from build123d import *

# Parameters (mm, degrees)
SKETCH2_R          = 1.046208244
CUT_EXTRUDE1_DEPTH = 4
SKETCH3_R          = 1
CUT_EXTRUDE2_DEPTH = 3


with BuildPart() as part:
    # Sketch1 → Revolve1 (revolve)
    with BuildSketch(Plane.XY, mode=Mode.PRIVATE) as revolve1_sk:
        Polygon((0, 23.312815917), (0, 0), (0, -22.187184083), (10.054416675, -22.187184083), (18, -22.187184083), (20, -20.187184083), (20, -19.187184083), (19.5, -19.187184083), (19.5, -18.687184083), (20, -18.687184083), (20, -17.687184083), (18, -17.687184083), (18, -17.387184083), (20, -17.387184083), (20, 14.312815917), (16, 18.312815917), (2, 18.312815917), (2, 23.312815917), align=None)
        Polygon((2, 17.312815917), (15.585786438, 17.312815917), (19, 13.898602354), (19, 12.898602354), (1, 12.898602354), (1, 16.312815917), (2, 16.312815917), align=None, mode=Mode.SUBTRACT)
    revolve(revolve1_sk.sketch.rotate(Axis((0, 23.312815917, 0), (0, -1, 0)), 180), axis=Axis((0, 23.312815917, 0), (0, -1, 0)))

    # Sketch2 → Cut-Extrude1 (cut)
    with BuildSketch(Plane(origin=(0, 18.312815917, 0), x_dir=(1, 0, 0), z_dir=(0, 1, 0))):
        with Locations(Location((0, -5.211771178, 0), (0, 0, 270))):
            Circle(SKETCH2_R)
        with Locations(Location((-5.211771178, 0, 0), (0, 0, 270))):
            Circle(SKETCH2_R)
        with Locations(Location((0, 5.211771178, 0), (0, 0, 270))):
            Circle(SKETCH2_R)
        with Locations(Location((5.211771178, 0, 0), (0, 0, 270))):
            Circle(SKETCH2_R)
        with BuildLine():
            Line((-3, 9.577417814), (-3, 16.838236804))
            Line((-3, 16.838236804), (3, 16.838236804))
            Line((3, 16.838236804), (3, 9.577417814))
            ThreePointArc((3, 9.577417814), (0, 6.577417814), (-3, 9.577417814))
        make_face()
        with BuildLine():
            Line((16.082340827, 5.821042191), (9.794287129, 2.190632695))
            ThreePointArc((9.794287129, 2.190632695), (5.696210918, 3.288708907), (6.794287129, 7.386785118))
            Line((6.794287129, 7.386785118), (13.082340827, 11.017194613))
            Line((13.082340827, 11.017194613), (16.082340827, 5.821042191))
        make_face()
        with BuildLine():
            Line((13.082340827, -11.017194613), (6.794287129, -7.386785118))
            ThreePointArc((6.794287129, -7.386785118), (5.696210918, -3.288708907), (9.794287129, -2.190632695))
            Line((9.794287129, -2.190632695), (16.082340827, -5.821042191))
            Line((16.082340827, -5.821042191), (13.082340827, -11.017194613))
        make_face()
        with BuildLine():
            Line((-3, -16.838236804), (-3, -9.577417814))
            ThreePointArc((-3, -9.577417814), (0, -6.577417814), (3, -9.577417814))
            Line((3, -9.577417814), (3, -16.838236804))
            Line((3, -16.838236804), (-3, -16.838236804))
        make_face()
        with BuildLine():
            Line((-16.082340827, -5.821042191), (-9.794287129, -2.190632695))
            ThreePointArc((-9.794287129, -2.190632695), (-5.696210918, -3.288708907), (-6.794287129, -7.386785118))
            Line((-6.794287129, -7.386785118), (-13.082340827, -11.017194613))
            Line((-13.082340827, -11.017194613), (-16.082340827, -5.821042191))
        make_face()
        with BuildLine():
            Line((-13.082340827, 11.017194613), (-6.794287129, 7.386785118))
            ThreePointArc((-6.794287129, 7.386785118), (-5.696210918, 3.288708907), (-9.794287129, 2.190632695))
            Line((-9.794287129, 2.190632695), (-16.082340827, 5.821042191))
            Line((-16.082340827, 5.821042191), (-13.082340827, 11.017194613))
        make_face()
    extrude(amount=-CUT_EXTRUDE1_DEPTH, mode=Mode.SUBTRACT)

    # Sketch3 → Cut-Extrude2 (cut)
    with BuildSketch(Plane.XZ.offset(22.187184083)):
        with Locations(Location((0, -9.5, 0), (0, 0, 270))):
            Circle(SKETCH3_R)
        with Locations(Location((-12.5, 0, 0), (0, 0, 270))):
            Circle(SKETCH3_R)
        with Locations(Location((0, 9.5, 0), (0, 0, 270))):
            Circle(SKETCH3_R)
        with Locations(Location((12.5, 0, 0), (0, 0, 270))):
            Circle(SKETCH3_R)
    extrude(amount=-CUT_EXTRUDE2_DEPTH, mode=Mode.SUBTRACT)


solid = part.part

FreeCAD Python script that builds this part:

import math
import FreeCAD as App
import Part
import Sketcher
Q = App.Units.Quantity


def add_polygon(sketch, points):
    """Adds a closed chain of lines whose ends are joined by coincident constraints."""
    first, n = sketch.GeometryCount, len(points)
    for a, b in zip(points, points[1:] + points[:1]):
        sketch.addGeometry(Part.LineSegment(App.Vector(*a, 0), App.Vector(*b, 0)), False)
    for i in range(n):
        sketch.addConstraint(Sketcher.Constraint("Coincident", first + i, 2, first + (i + 1) % n, 1))

doc = App.newDocument("Part")
body = doc.addObject("PartDesign::Body", "Body")

sketch1 = body.newObject("Sketcher::SketchObject", "Sketch")
sketch1.AttachmentSupport = (doc.getObject("XY_Plane"), [""])
sketch1.MapMode = "FlatFace"
add_polygon(sketch1, [(0, 23.31), (0, -22.19), (18, -22.19), (20, -20.19), (20, -19.19), (19.5, -19.19), (19.5, -18.69), (20, -18.69), (20, -17.69), (18, -17.69), (18, -17.39), (20, -17.39), (20, 14.31), (16, 18.31), (2, 18.31), (2, 23.31)])
add_polygon(sketch1, [(2, 16.31), (2, 17.31), (15.59, 17.31), (19, 13.9), (19, 12.9), (1, 12.9), (1, 16.31)])
sketch1.addConstraint(Sketcher.Constraint("Vertical", 0))
sketch1.addConstraint(Sketcher.Constraint("Horizontal", 1))
sketch1.addConstraint(Sketcher.Constraint("Vertical", 3))
sketch1.addConstraint(Sketcher.Constraint("Horizontal", 4))
sketch1.addConstraint(Sketcher.Constraint("Vertical", 5))
sketch1.addConstraint(Sketcher.Constraint("Horizontal", 6))
sketch1.addConstraint(Sketcher.Constraint("Vertical", 7))
sketch1.addConstraint(Sketcher.Constraint("Horizontal", 8))
sketch1.addConstraint(Sketcher.Constraint("Vertical", 9))
sketch1.addConstraint(Sketcher.Constraint("Horizontal", 10))
sketch1.addConstraint(Sketcher.Constraint("Vertical", 11))
sketch1.addConstraint(Sketcher.Constraint("Horizontal", 13))
sketch1.addConstraint(Sketcher.Constraint("Vertical", 14))
sketch1.addConstraint(Sketcher.Constraint("Horizontal", 15))
sketch1.addConstraint(Sketcher.Constraint("Vertical", 16))
sketch1.addConstraint(Sketcher.Constraint("Horizontal", 17))
sketch1.addConstraint(Sketcher.Constraint("Vertical", 19))
sketch1.addConstraint(Sketcher.Constraint("Horizontal", 20))
sketch1.addConstraint(Sketcher.Constraint("Vertical", 21))
sketch1.addConstraint(Sketcher.Constraint("Horizontal", 22))
sketch1.addConstraint(Sketcher.Constraint("PointOnObject", 0, 2, -2))
sketch1.addConstraint(Sketcher.Constraint("Perpendicular", 2, 12))
sketch1.addConstraint(Sketcher.Constraint("Parallel", 12, 18))
sketch1.addConstraint(Sketcher.Constraint("Vertical", 3, 2, 6, 2))
sketch1.addConstraint(Sketcher.Constraint("Vertical", 1, 2, 8, 2))
sketch1.addConstraint(Sketcher.Constraint("Vertical", 7, 2, 10, 2))
sketch1.addConstraint(Sketcher.Constraint("Vertical", 14, 2, 16, 2))
sketch1.addConstraint(Sketcher.Constraint("Equal", 10, 15))
sketch1.addConstraint(Sketcher.Constraint("Equal", 1, 20))
sketch1.addConstraint(Sketcher.Constraint("Equal", 22, 3))
sketch1.addConstraint(Sketcher.Constraint("Equal", 6, 5))
sketch1.addConstraint(Sketcher.Constraint("Equal", 3, 7))
sketch1.addConstraint(Sketcher.Constraint("Equal", 7, 16))
sketch1.addConstraint(Sketcher.Constraint("Equal", 16, 19))
sketch1.addConstraint(Sketcher.Constraint("DistanceX", 1, 1, 1, 2, 18.0))
sketch1.addConstraint(Sketcher.Constraint("DistanceX", 8, 2, 8, 1, 2.0))
sketch1.addConstraint(Sketcher.Constraint("DistanceX", 13, 2, 13, 1, 14.0))
sketch1.addConstraint(Sketcher.Constraint("DistanceX", 22, 1, 22, 2, 1.0))
sketch1.addConstraint(Sketcher.Constraint("DistanceY", 14, 1, 14, 2, 5.0))
sketch1.addConstraint(Sketcher.Constraint("Angle", 2, Q("45 deg")))
sketch1.addConstraint(Sketcher.Constraint("DistanceX", 4, 2, 4, 1, 0.5))
sketch1.addConstraint(Sketcher.Constraint("DistanceY", 0, 2, 0, 1, 45.5))
sketch1.addConstraint(Sketcher.Constraint("DistanceY", 9, 1, 9, 2, 0.3))
sketch1.addConstraint(Sketcher.Constraint("DistanceY", 16, 2, 13, 2, 1.0))
sketch1.addConstraint(Sketcher.Constraint("DistanceX", 17, 1, 17, 2, 13.585786))
sketch1.addConstraint(Sketcher.Constraint("DistanceY", 0, 2, -1, 1, 22.187184))
revolution = body.newObject("PartDesign::Revolution", "Revolution")
revolution.Profile = sketch1
revolution.ReferenceAxis = (sketch1, ["V_Axis"])
revolution.Angle = 360

sketch2 = body.newObject("Sketcher::SketchObject", "Sketch001")
sketch2.AttachmentSupport = (doc.getObject("XZ_Plane"), [""])
sketch2.MapMode = "FlatFace"
sketch2.AttachmentOffset = App.Placement(App.Vector(0, 0, -18.312816), App.Rotation())
sketch2.addGeometry(Part.Circle(App.Vector(0, 5.2, 0), App.Vector(0, 0, 1), 1), False)
sketch2.addGeometry(Part.Circle(App.Vector(-5.2, 0, 0), App.Vector(0, 0, 1), 1), False)
sketch2.addGeometry(Part.Circle(App.Vector(0, -5.2, 0), App.Vector(0, 0, 1), 1), False)
sketch2.addGeometry(Part.Circle(App.Vector(5.2, 0, 0), App.Vector(0, 0, 1), 1), False)
sketch2.addGeometry(Part.LineSegment(App.Vector(-3, -16.8, 0), App.Vector(-3, -9.6, 0)), False)
sketch2.addGeometry(Part.ArcOfCircle(Part.Circle(App.Vector(0, -9.6, 0), App.Vector(0, 0, 1), 3), math.radians(0), math.radians(180)), False)
sketch2.addGeometry(Part.LineSegment(App.Vector(3, -9.6, 0), App.Vector(3, -16.8, 0)), False)
sketch2.addGeometry(Part.LineSegment(App.Vector(3, -16.8, 0), App.Vector(-3, -16.8, 0)), False)
sketch2.addGeometry(Part.LineSegment(App.Vector(9.8, -2.2, 0), App.Vector(16.1, -5.8, 0)), False)
sketch2.addGeometry(Part.LineSegment(App.Vector(16.1, -5.8, 0), App.Vector(13.1, -11, 0)), False)
sketch2.addGeometry(Part.LineSegment(App.Vector(13.1, -11, 0), App.Vector(6.8, -7.4, 0)), False)
sketch2.addGeometry(Part.ArcOfCircle(Part.Circle(App.Vector(8.3, -4.8, 0), App.Vector(0, 0, 1), 3), math.radians(60), math.radians(240)), False)
sketch2.addGeometry(Part.LineSegment(App.Vector(6.8, 7.4, 0), App.Vector(13.1, 11, 0)), False)
sketch2.addGeometry(Part.LineSegment(App.Vector(13.1, 11, 0), App.Vector(16.1, 5.8, 0)), False)
sketch2.addGeometry(Part.LineSegment(App.Vector(16.1, 5.8, 0), App.Vector(9.8, 2.2, 0)), False)
sketch2.addGeometry(Part.ArcOfCircle(Part.Circle(App.Vector(8.3, 4.8, 0), App.Vector(0, 0, 1), 3), math.radians(120), math.radians(300)), False)
sketch2.addGeometry(Part.LineSegment(App.Vector(-3, 9.6, 0), App.Vector(-3, 16.8, 0)), False)
sketch2.addGeometry(Part.LineSegment(App.Vector(-3, 16.8, 0), App.Vector(3, 16.8, 0)), False)
sketch2.addGeometry(Part.LineSegment(App.Vector(3, 16.8, 0), App.Vector(3, 9.6, 0)), False)
sketch2.addGeometry(Part.ArcOfCircle(Part.Circle(App.Vector(0, 9.6, 0), App.Vector(0, 0, 1), 3), math.radians(180), math.radians(360)), False)
sketch2.addGeometry(Part.LineSegment(App.Vector(-9.8, 2.2, 0), App.Vector(-16.1, 5.8, 0)), False)
sketch2.addGeometry(Part.LineSegment(App.Vector(-16.1, 5.8, 0), App.Vector(-13.1, 11, 0)), False)
sketch2.addGeometry(Part.LineSegment(App.Vector(-13.1, 11, 0), App.Vector(-6.8, 7.4, 0)), False)
sketch2.addGeometry(Part.ArcOfCircle(Part.Circle(App.Vector(-8.3, 4.8, 0), App.Vector(0, 0, 1), 3), math.radians(-120), math.radians(60)), False)
sketch2.addGeometry(Part.LineSegment(App.Vector(-6.8, -7.4, 0), App.Vector(-13.1, -11, 0)), False)
sketch2.addGeometry(Part.LineSegment(App.Vector(-13.1, -11, 0), App.Vector(-16.1, -5.8, 0)), False)
sketch2.addGeometry(Part.LineSegment(App.Vector(-16.1, -5.8, 0), App.Vector(-9.8, -2.2, 0)), False)
sketch2.addGeometry(Part.ArcOfCircle(Part.Circle(App.Vector(-8.3, -4.8, 0), App.Vector(0, 0, 1), 3), math.radians(-60), math.radians(120)), False)
sketch2.addConstraint(Sketcher.Constraint("Tangent", 4, 2, 5, 2))
sketch2.addConstraint(Sketcher.Constraint("Tangent", 5, 1, 6, 1))
sketch2.addConstraint(Sketcher.Constraint("Coincident", 6, 2, 7, 1))
sketch2.addConstraint(Sketcher.Constraint("Coincident", 7, 2, 4, 1))
sketch2.addConstraint(Sketcher.Constraint("Coincident", 8, 2, 9, 1))
sketch2.addConstraint(Sketcher.Constraint("Coincident", 9, 2, 10, 1))
sketch2.addConstraint(Sketcher.Constraint("Tangent", 10, 2, 11, 2))
sketch2.addConstraint(Sketcher.Constraint("Tangent", 11, 1, 8, 1))
sketch2.addConstraint(Sketcher.Constraint("Coincident", 12, 2, 13, 1))
sketch2.addConstraint(Sketcher.Constraint("Coincident", 13, 2, 14, 1))
sketch2.addConstraint(Sketcher.Constraint("Tangent", 14, 2, 15, 2))
sketch2.addConstraint(Sketcher.Constraint("Tangent", 15, 1, 12, 1))
sketch2.addConstraint(Sketcher.Constraint("Coincident", 16, 2, 17, 1))
sketch2.addConstraint(Sketcher.Constraint("Coincident", 17, 2, 18, 1))
sketch2.addConstraint(Sketcher.Constraint("Tangent", 18, 2, 19, 2))
sketch2.addConstraint(Sketcher.Constraint("Tangent", 19, 1, 16, 1))
sketch2.addConstraint(Sketcher.Constraint("Coincident", 20, 2, 21, 1))
sketch2.addConstraint(Sketcher.Constraint("Coincident", 21, 2, 22, 1))
sketch2.addConstraint(Sketcher.Constraint("Tangent", 22, 2, 23, 2))
sketch2.addConstraint(Sketcher.Constraint("Tangent", 23, 1, 20, 1))
sketch2.addConstraint(Sketcher.Constraint("Coincident", 24, 2, 25, 1))
sketch2.addConstraint(Sketcher.Constraint("Coincident", 25, 2, 26, 1))
sketch2.addConstraint(Sketcher.Constraint("Tangent", 26, 2, 27, 2))
sketch2.addConstraint(Sketcher.Constraint("Tangent", 27, 1, 24, 1))
sketch2.addConstraint(Sketcher.Constraint("Vertical", 4))
sketch2.addConstraint(Sketcher.Constraint("Vertical", 6))
sketch2.addConstraint(Sketcher.Constraint("Horizontal", 7))
sketch2.addConstraint(Sketcher.Constraint("Vertical", 16))
sketch2.addConstraint(Sketcher.Constraint("Horizontal", 17))
sketch2.addConstraint(Sketcher.Constraint("Vertical", 18))
sketch2.addConstraint(Sketcher.Constraint("Equal", 0, 1))
sketch2.addConstraint(Sketcher.Constraint("Equal", 1, 2))
sketch2.addConstraint(Sketcher.Constraint("Equal", 2, 3))
sketch2.addConstraint(Sketcher.Constraint("Equal", 5, 11))
sketch2.addConstraint(Sketcher.Constraint("Equal", 11, 15))
sketch2.addConstraint(Sketcher.Constraint("Equal", 15, 19))
sketch2.addConstraint(Sketcher.Constraint("Equal", 19, 23))
sketch2.addConstraint(Sketcher.Constraint("Equal", 23, 27))
sketch2.addConstraint(Sketcher.Constraint("Symmetric", 0, 3, 2, 3, -1, 1))
sketch2.addConstraint(Sketcher.Constraint("Symmetric", 1, 3, 3, 3, -1, 1))
sketch2.addConstraint(Sketcher.Constraint("Symmetric", 5, 3, 19, 3, -1, 1))
sketch2.addConstraint(Sketcher.Constraint("Symmetric", 11, 3, 23, 3, -1, 1))
sketch2.addConstraint(Sketcher.Constraint("Symmetric", 15, 3, 27, 3, -1, 1))
sketch2.addConstraint(Sketcher.Constraint("Symmetric", 8, 2, 20, 2, -1, 1))
sketch2.addConstraint(Sketcher.Constraint("Symmetric", 9, 2, 21, 2, -1, 1))
sketch2.addConstraint(Sketcher.Constraint("Symmetric", 12, 2, 24, 2, -1, 1))
sketch2.addConstraint(Sketcher.Constraint("Symmetric", 13, 2, 25, 2, -1, 1))
sketch2.addConstraint(Sketcher.Constraint("Symmetric", 15, 3, 23, 3, -2))
sketch2.addConstraint(Sketcher.Constraint("Symmetric", 13, 2, 20, 2, -2))
sketch2.addConstraint(Sketcher.Constraint("Symmetric", 12, 2, 21, 2, -2))
sketch2.addConstraint(Sketcher.Constraint("Symmetric", 7, 2, 16, 2, -1))
sketch2.addConstraint(Sketcher.Constraint("PointOnObject", 0, 3, -2))
sketch2.addConstraint(Sketcher.Constraint("PointOnObject", 1, 3, -1))
sketch2.addConstraint(Sketcher.Constraint("Perpendicular", 8, 9))
sketch2.addConstraint(Sketcher.Constraint("Perpendicular", 9, 10))
sketch2.addConstraint(Sketcher.Constraint("Radius", 5, 3.0))
sketch2.addConstraint(Sketcher.Constraint("Angle", 8, Q("-30 deg")))
sketch2.addConstraint(Sketcher.Constraint("Diameter", 0, 2.092416))
sketch2.addConstraint(Sketcher.Constraint("DistanceY", 4, 1, 4, 2, 7.260819))
sketch2.addConstraint(Sketcher.Constraint("Distance", 8, 7.260819))
sketch2.addConstraint(Sketcher.Constraint("DistanceY", -1, 1, 0, 3, 5.211771))
sketch2.addConstraint(Sketcher.Constraint("DistanceX", 1, 3, -1, 1, 5.211771))
sketch2.addConstraint(Sketcher.Constraint("DistanceY", 11, 3, -1, 1, 4.788709))
sketch2.addConstraint(Sketcher.Constraint("DistanceX", -1, 1, 8, 2, 16.082341))
sketch2.addConstraint(Sketcher.Constraint("DistanceY", 5, 3, 0, 3, 14.789189))
pocket1 = body.newObject("PartDesign::Pocket", "Pocket")
pocket1.Profile = sketch2
pocket1.Length = 4
pocket1.Reversed = True

sketch3 = body.newObject("Sketcher::SketchObject", "Sketch002")
sketch3.AttachmentSupport = (doc.getObject("XZ_Plane"), [""])
sketch3.MapMode = "FlatFace"
sketch3.AttachmentOffset = App.Placement(App.Vector(0, 0, 22.187184), App.Rotation())
sketch3.addGeometry(Part.Circle(App.Vector(0, -9.5, 0), App.Vector(0, 0, 1), 1), False)
sketch3.addGeometry(Part.Circle(App.Vector(-12.5, 0, 0), App.Vector(0, 0, 1), 1), False)
sketch3.addGeometry(Part.Circle(App.Vector(0, 9.5, 0), App.Vector(0, 0, 1), 1), False)
sketch3.addGeometry(Part.Circle(App.Vector(12.5, 0, 0), App.Vector(0, 0, 1), 1), False)
sketch3.addConstraint(Sketcher.Constraint("Equal", 0, 1))
sketch3.addConstraint(Sketcher.Constraint("Equal", 1, 2))
sketch3.addConstraint(Sketcher.Constraint("Equal", 2, 3))
sketch3.addConstraint(Sketcher.Constraint("Symmetric", 0, 3, 2, 3, -1, 1))
sketch3.addConstraint(Sketcher.Constraint("Symmetric", 1, 3, 3, 3, -1, 1))
sketch3.addConstraint(Sketcher.Constraint("PointOnObject", 0, 3, -2))
sketch3.addConstraint(Sketcher.Constraint("PointOnObject", 1, 3, -1))
sketch3.addConstraint(Sketcher.Constraint("Diameter", 0, 2.0))
sketch3.addConstraint(Sketcher.Constraint("DistanceY", 0, 3, 2, 3, 19.0))
sketch3.addConstraint(Sketcher.Constraint("DistanceX", 1, 3, 3, 3, 25.0))
pocket2 = body.newObject("PartDesign::Pocket", "Pocket001")
pocket2.Profile = sketch3
pocket2.Length = 3

doc.recompute()
